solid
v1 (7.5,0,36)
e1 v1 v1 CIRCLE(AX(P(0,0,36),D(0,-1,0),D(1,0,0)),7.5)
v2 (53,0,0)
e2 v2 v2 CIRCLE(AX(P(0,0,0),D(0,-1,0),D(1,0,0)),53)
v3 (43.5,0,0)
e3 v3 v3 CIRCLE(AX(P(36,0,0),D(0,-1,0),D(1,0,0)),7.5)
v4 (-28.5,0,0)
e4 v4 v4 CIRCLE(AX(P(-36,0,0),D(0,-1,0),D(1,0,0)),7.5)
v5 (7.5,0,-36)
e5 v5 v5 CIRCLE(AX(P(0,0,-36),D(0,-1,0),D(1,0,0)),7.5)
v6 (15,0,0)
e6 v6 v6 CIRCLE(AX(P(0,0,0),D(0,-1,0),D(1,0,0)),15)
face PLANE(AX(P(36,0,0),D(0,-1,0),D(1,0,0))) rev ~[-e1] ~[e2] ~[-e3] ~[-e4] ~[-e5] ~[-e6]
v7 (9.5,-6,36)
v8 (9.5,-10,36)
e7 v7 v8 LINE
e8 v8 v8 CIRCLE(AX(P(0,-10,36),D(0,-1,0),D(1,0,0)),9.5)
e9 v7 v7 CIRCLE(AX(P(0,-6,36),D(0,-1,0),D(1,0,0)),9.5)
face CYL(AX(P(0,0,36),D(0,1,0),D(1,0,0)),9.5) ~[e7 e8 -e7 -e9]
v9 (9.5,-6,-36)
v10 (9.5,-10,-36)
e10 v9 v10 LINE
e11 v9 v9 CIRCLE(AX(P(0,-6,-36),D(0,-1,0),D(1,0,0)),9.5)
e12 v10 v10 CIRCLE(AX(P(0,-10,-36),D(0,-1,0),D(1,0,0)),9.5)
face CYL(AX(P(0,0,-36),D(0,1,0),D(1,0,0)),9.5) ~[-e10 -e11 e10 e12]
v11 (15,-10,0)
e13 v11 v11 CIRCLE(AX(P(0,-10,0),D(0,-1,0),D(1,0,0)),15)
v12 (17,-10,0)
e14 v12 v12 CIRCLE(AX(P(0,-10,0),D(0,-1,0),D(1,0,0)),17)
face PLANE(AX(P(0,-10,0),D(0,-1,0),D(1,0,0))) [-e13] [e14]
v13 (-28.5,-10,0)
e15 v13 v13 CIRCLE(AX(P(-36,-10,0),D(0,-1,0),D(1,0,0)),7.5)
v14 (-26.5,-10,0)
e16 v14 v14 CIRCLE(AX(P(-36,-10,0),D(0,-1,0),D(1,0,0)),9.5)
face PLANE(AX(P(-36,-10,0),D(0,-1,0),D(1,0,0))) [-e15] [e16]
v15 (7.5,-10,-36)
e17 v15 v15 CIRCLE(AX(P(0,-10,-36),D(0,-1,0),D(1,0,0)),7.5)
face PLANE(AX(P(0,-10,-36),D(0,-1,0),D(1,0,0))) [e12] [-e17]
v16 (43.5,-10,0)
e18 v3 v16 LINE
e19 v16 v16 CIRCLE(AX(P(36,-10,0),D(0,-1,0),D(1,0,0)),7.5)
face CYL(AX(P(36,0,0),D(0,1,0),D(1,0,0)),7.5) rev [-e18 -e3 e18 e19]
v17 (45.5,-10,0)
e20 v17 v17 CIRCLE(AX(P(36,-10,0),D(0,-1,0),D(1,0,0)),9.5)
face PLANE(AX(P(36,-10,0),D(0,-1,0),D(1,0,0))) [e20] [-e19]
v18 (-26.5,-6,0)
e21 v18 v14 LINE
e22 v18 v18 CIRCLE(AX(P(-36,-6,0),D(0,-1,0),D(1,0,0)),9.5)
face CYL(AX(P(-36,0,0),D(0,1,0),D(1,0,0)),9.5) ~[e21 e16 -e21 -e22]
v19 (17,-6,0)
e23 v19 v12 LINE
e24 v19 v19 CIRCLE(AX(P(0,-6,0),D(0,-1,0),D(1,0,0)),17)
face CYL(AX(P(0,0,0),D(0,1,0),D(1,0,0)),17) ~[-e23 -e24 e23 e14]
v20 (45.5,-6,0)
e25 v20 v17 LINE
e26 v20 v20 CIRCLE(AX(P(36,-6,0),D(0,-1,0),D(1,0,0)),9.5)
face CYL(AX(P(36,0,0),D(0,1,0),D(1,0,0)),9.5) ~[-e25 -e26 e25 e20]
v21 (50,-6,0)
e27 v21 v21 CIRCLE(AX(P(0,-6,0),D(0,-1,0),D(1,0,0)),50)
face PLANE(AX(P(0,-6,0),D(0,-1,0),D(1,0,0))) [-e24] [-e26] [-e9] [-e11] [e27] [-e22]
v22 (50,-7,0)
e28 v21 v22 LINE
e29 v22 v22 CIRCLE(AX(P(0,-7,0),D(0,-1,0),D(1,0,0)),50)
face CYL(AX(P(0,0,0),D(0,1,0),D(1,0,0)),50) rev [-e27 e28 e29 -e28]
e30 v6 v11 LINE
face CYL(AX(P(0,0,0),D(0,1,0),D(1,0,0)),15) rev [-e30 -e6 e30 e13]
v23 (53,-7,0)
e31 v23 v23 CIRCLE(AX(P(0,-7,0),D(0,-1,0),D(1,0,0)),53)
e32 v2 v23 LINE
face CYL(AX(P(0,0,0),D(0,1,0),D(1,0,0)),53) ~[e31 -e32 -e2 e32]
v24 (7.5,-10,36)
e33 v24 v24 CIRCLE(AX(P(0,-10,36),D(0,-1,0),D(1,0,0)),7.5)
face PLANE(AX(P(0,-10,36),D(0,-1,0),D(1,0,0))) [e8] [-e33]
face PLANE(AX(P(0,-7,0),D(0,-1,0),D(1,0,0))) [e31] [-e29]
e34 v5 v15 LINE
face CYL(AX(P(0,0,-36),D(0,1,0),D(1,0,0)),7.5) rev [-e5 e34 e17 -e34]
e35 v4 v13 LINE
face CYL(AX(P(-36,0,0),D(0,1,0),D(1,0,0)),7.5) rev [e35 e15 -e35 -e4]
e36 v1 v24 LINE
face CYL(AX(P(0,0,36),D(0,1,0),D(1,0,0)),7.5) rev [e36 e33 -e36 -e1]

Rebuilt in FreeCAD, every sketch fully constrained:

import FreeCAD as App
import Part
import Sketcher
from FreeCAD import Vector

doc = App.newDocument("Part")
params = doc.addObject("Spreadsheet::Sheet", "Params")
for row, (alias, value) in enumerate([
    ("sketch1_diameter", "106 mm"),
    ("sketch1_diameter2", "100 mm"),
    ("pad1_length", "7 mm"),
    ("sketch2_diameter", "100 mm"),
    ("sketch2_diameter2", "19 mm"),
    ("sketch2_diameter3", "34 mm"),
    ("pad2_length", "6 mm"),
    ("sketch3_diameter", "19 mm"),
    ("sketch3_diameter2", "15 mm"),
    ("sketch3_diameter3", "34 mm"),
    ("sketch3_diameter4", "30 mm"),
    ("pad3_length", "10 mm"),
], start=1):
    params.set(f"A{row}", alias)
    params.set(f"B{row}", "=" + value)
    params.setAlias(f"B{row}", alias)

body = doc.addObject("PartDesign::Body", "Body")

# Sketch on XZ plane
sketch1 = body.newObject("Sketcher::SketchObject", "Sketch")
sketch1.AttachmentSupport = (doc.getObject("XZ_Plane"), [""])
sketch1.MapMode = "FlatFace"
sketch1.addGeometry(Part.Circle(Vector(0, 0, 0), Vector(0, 0, 1), 53), False)
sketch1.addGeometry(Part.Circle(Vector(0, 0, 0), Vector(0, 0, 1), 50), False)
sketch1.addConstraint(Sketcher.Constraint("Coincident", 0, 3, -1, 1))
sketch1.addConstraint(Sketcher.Constraint("Coincident", 1, 3, -1, 1))
sketch1.addConstraint(Sketcher.Constraint("Diameter", 0, 106.0))
sketch1.addConstraint(Sketcher.Constraint("Diameter", 1, 100.0))
sketch1.setExpression("Constraints[2]", "Params.sketch1_diameter")
sketch1.setExpression("Constraints[3]", "Params.sketch1_diameter2")
pad1 = body.newObject("PartDesign::Pad", "Pad")
pad1.Profile = sketch1
pad1.setExpression("Length", "Params.pad1_length")

# Sketch on XZ plane
sketch2 = body.newObject("Sketcher::SketchObject", "Sketch001")
sketch2.AttachmentSupport = (doc.getObject("XZ_Plane"), [""])
sketch2.MapMode = "FlatFace"
sketch2.addGeometry(Part.Circle(Vector(0, 0, 0), Vector(0, 0, 1), 50), False)
sketch2.addGeometry(Part.Circle(Vector(0, -36, 0), Vector(0, 0, 1), 9.5), False)
sketch2.addGeometry(Part.Circle(Vector(-36, 0, 0), Vector(0, 0, 1), 9.5), False)
sketch2.addGeometry(Part.Circle(Vector(0, 0, 0), Vector(0, 0, 1), 17), False)
sketch2.addGeometry(Part.Circle(Vector(36, 0, 0), Vector(0, 0, 1), 9.5), False)
sketch2.addGeometry(Part.Circle(Vector(0, 36, 0), Vector(0, 0, 1), 9.5), False)
sketch2.addConstraint(Sketcher.Constraint("Coincident", 0, 3, -1, 1))
sketch2.addConstraint(Sketcher.Constraint("Coincident", 3, 3, -1, 1))
sketch2.addConstraint(Sketcher.Constraint("Equal", 1, 2))
sketch2.addConstraint(Sketcher.Constraint("Equal", 2, 4))
sketch2.addConstraint(Sketcher.Constraint("Equal", 4, 5))
sketch2.addConstraint(Sketcher.Constraint("Symmetric", 2, 3, 4, 3, -1, 1))
sketch2.addConstraint(Sketcher.Constraint("Symmetric", 1, 3, 5, 3, -1, 1))
sketch2.addConstraint(Sketcher.Constraint("PointOnObject", 1, 3, -2))
sketch2.addConstraint(Sketcher.Constraint("PointOnObject", 2, 3, -1))
sketch2.addConstraint(Sketcher.Constraint("Diameter", 0, 100.0))
sketch2.addConstraint(Sketcher.Constraint("Diameter", 1, 19.0))
sketch2.addConstraint(Sketcher.Constraint("Diameter", 3, 34.0))
sketch2.addConstraint(Sketcher.Constraint("DistanceY", 1, 3, -1, 1, 36.0))
sketch2.addConstraint(Sketcher.Constraint("DistanceX", 2, 3, -1, 1, 36.0))
sketch2.setExpression("Constraints[9]", "Params.sketch2_diameter")
sketch2.setExpression("Constraints[10]", "Params.sketch2_diameter2")
sketch2.setExpression("Constraints[11]", "Params.sketch2_diameter3")
pad2 = body.newObject("PartDesign::Pad", "Pad001")
pad2.Profile = sketch2
pad2.setExpression("Length", "Params.pad2_length")

# Sketch on XZ plane
sketch3 = body.newObject("Sketcher::SketchObject", "Sketch002")
sketch3.AttachmentSupport = (doc.getObject("XZ_Plane"), [""])
sketch3.MapMode = "FlatFace"
sketch3.addGeometry(Part.Circle(Vector(36, 0, 0), Vector(0, 0, 1), 9.5), False)
sketch3.addGeometry(Part.Circle(Vector(36, 0, 0), Vector(0, 0, 1), 7.5), False)
sketch3.addGeometry(Part.Circle(Vector(0, 0, 0), Vector(0, 0, 1), 17), False)
sketch3.addGeometry(Part.Circle(Vector(0, 0, 0), Vector(0, 0, 1), 15), False)
sketch3.addGeometry(Part.Circle(Vector(0, 36, 0), Vector(0, 0, 1), 9.5), False)
sketch3.addGeometry(Part.Circle(Vector(0, 36, 0), Vector(0, 0, 1), 7.5), False)
sketch3.addGeometry(Part.Circle(Vector(-36, 0, 0), Vector(0, 0, 1), 9.5), False)
sketch3.addGeometry(Part.Circle(Vector(-36, 0, 0), Vector(0, 0, 1), 7.5), False)
sketch3.addGeometry(Part.Circle(Vector(0, -36, 0), Vector(0, 0, 1), 9.5), False)
sketch3.addGeometry(Part.Circle(Vector(0, -36, 0), Vector(0, 0, 1), 7.5), False)
sketch3.addConstraint(Sketcher.Constraint("Coincident", 2, 3, -1, 1))
sketch3.addConstraint(Sketcher.Constraint("Coincident", 3, 3, -1, 1))
sketch3.addConstraint(Sketcher.Constraint("Coincident", 1, 3, 0, 3))
sketch3.addConstraint(Sketcher.Constraint("Coincident", 5, 3, 4, 3))
sketch3.addConstraint(Sketcher.Constraint("Coincident", 7, 3, 6, 3))
sketch3.addConstraint(Sketcher.Constraint("Coincident", 9, 3, 8, 3))
sketch3.addConstraint(Sketcher.Constraint("Equal", 0, 4))
sketch3.addConstraint(Sketcher.Constraint("Equal", 1, 5))
sketch3.addConstraint(Sketcher.Constraint("Equal", 4, 6))
sketch3.addConstraint(Sketcher.Constraint("Equal", 5, 7))
sketch3.addConstraint(Sketcher.Constraint("Equal", 6, 8))
sketch3.addConstraint(Sketcher.Constraint("Equal", 7, 9))
sketch3.addConstraint(Sketcher.Constraint("Symmetric", 0, 3, 6, 3, -1, 1))
sketch3.addConstraint(Sketcher.Constraint("Symmetric", 4, 3, 8, 3, -1, 1))
sketch3.addConstraint(Sketcher.Constraint("PointOnObject", 0, 3, -1))
sketch3.addConstraint(Sketcher.Constraint("PointOnObject", 4, 3, -2))
sketch3.addConstraint(Sketcher.Constraint("Diameter", 0, 19.0))
sketch3.addConstraint(Sketcher.Constraint("Diameter", 1, 15.0))
sketch3.addConstraint(Sketcher.Constraint("Diameter", 2, 34.0))
sketch3.addConstraint(Sketcher.Constraint("Diameter", 3, 30.0))
sketch3.addConstraint(Sketcher.Constraint("DistanceX", -1, 1, 0, 3, 36.0))
sketch3.addConstraint(Sketcher.Constraint("DistanceY", -1, 1, 4, 3, 36.0))
sketch3.setExpression("Constraints[16]", "Params.sketch3_diameter")
sketch3.setExpression("Constraints[17]", "Params.sketch3_diameter2")
sketch3.setExpression("Constraints[18]", "Params.sketch3_diameter3")
sketch3.setExpression("Constraints[19]", "Params.sketch3_diameter4")
pad3 = body.newObject("PartDesign::Pad", "Pad002")
pad3.Profile = sketch3
pad3.setExpression("Length", "Params.pad3_length")

doc.recompute()
